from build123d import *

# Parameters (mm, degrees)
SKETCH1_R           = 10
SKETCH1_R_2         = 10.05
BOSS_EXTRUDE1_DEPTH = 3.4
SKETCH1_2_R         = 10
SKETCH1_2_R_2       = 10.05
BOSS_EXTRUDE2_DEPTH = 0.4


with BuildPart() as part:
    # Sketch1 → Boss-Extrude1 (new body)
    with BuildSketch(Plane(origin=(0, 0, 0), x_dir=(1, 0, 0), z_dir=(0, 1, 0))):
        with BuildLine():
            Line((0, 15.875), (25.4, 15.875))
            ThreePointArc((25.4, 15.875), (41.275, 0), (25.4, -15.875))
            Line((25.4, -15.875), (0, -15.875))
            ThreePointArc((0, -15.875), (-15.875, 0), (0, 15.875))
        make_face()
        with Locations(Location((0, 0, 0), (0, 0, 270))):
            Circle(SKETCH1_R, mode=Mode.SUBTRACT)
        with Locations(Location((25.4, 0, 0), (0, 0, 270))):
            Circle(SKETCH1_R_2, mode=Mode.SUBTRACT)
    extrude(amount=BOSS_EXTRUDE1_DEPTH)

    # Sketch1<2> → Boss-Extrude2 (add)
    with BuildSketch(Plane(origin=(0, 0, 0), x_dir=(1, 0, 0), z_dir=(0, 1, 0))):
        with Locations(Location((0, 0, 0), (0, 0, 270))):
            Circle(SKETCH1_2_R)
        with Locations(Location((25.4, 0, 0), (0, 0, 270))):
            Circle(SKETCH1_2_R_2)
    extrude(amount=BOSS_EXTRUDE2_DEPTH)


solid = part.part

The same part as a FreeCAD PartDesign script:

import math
import FreeCAD as App
import Part
import Sketcher

V = App.Vector

doc = App.newDocument("Part")
body = doc.addObject("PartDesign::Body", "Body")

# Sketch on XZ plane
sketch1 = body.newObject("Sketcher::SketchObject", "Sketch")
sketch1.AttachmentSupport = (doc.getObject("XZ_Plane"), [""])
sketch1.MapMode = "FlatFace"
sketch1.addGeometry(Part.LineSegment(V(25, -16, 0), V(0, -16, 0)), False)
sketch1.addGeometry(Part.ArcOfCircle(Part.Circle(V(0, 0, 0), V(0, 0, 1), 16), math.radians(90), math.radians(270)), False)
sketch1.addGeometry(Part.LineSegment(V(0, 16, 0), V(25, 16, 0)), False)
sketch1.addGeometry(Part.ArcOfCircle(Part.Circle(V(25, 0, 0), V(0, 0, 1), 16), math.radians(-90), math.radians(90)), False)
sketch1.addGeometry(Part.Circle(V(25, 0, 0), V(0, 0, 1), 10), False)
sketch1.addGeometry(Part.Circle(V(0, 0, 0), V(0, 0, 1), 10), False)
sketch1.addConstraint(Sketcher.Constraint("Tangent", 0, 2, 1, 2))
sketch1.addConstraint(Sketcher.Constraint("Tangent", 1, 1, 2, 1))
sketch1.addConstraint(Sketcher.Constraint("Tangent", 2, 2, 3, 2))
sketch1.addConstraint(Sketcher.Constraint("Tangent", 3, 1, 0, 1))
sketch1.addConstraint(Sketcher.Constraint("Horizontal", 0))
sketch1.addConstraint(Sketcher.Constraint("Horizontal", 2))
sketch1.addConstraint(Sketcher.Constraint("Coincident", 1, 3, -1, 1))
sketch1.addConstraint(Sketcher.Constraint("Coincident", 5, 3, -1, 1))
sketch1.addConstraint(Sketcher.Constraint("Coincident", 4, 3, 3, 3))
sketch1.addConstraint(Sketcher.Constraint("Diameter", 5, 20.0))
sketch1.addConstraint(Sketcher.Constraint("Diameter", 4, 20.1))
sketch1.addConstraint(Sketcher.Constraint("DistanceX", 0, 2, 0, 1, 25.4))
sketch1.addConstraint(Sketcher.Constraint("Radius", 1, 15.875))
pad1 = body.newObject("PartDesign::Pad", "Pad")
pad1.Profile = sketch1
pad1.Length = 3.4
pad1.Reversed = True

# Sketch on XZ plane
sketch2 = body.newObject("Sketcher::SketchObject", "Sketch001")
sketch2.AttachmentSupport = (doc.getObject("XZ_Plane"), [""])
sketch2.MapMode = "FlatFace"
sketch2.addGeometry(Part.Circle(V(0, 0, 0), V(0, 0, 1), 10), False)
sketch2.addGeometry(Part.Circle(V(25, 0, 0), V(0, 0, 1), 10), False)
sketch2.addConstraint(Sketcher.Constraint("Coincident", 0, 3, -1, 1))
sketch2.addConstraint(Sketcher.Constraint("PointOnObject", 1, 3, -1))
sketch2.addConstraint(Sketcher.Constraint("Diameter", 0, 20.0))
sketch2.addConstraint(Sketcher.Constraint("Diameter", 1, 20.1))
sketch2.addConstraint(Sketcher.Constraint("DistanceX", -1, 1, 1, 3, 25.4))
pad2 = body.newObject("PartDesign::Pad", "Pad001")
pad2.Profile = sketch2
pad2.Length = 0.4
pad2.Reversed = True

doc.recompute()
